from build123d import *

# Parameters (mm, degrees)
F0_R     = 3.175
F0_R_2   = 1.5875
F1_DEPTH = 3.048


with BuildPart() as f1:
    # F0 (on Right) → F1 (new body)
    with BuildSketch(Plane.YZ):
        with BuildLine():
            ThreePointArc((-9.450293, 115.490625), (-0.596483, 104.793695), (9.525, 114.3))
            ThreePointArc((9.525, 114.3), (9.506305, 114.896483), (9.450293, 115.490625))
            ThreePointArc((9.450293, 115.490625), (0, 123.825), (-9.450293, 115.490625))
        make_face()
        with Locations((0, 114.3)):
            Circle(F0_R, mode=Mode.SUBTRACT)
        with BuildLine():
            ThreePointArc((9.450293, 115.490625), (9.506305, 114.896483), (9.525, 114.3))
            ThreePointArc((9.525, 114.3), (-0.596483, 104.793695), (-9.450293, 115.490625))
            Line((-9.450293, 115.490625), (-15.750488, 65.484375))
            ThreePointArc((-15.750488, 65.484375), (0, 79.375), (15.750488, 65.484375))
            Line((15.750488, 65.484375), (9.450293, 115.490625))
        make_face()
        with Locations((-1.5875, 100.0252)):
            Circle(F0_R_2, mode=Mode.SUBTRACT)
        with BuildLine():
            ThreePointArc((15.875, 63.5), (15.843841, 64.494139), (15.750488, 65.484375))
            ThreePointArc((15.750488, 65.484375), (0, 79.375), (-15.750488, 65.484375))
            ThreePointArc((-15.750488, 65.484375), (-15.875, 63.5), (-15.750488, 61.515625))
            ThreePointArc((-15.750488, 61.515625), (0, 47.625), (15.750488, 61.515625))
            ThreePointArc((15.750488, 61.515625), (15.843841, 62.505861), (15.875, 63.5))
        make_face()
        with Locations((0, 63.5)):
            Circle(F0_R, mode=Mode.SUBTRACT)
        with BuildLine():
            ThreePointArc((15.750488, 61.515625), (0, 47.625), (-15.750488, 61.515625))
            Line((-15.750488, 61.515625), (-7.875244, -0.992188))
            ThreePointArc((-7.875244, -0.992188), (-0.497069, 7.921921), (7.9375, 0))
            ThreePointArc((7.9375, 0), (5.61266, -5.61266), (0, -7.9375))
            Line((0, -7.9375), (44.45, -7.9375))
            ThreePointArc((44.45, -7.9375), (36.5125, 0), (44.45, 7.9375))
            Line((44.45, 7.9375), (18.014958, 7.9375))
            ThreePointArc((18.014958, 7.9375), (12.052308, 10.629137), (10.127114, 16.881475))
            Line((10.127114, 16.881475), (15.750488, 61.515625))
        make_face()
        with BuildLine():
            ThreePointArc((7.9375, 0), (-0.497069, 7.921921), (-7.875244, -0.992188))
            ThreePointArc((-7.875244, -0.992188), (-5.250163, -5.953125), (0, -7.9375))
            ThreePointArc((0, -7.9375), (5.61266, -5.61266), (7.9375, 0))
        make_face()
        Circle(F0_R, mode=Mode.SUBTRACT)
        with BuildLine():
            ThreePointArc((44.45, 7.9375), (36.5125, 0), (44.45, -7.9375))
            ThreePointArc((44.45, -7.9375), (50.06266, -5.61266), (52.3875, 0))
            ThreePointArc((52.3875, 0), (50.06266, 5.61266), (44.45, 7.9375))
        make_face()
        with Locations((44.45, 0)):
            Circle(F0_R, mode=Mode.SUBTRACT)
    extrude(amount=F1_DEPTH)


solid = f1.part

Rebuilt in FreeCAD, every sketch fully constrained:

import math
import FreeCAD as App
import Part
import Sketcher
Q = App.Units.Quantity

doc = App.newDocument("Part")
params = doc.addObject("Spreadsheet::Sheet", "Params")
for row, (alias, value) in enumerate([
    ("sketch1_diameter", "0.25 in"),
    ("sketch1_diameter2", "0.25 in"),
    ("sketch1_diameter3", "0.25 in"),
    ("sketch1_diameter4", "0.25 in"),
    ("sketch1_diameter5", "0.125 in"),
    ("pad1_length", "0.12 in"),
], start=1):
    params.set(f"A{row}", alias)
    params.set(f"B{row}", "=" + value)
    params.setAlias(f"B{row}", alias)

body = doc.addObject("PartDesign::Body", "Body")

# Sketch on YZ plane
sketch1 = body.newObject("Sketcher::SketchObject", "Sketch")
sketch1.AttachmentSupport = (doc.getObject("YZ_Plane"), [""])
sketch1.MapMode = "FlatFace"
sketch1.addGeometry(Part.ArcOfCircle(Part.Circle(App.Vector(0, 114.3, 0), App.Vector(0, 0, 1), 9.525), math.radians(7.180756), math.radians(172.819244)), False)
sketch1.addGeometry(Part.LineSegment(App.Vector(-9.450293, 115.490625, 0), App.Vector(-15.750488, 65.484375, 0)), False)
sketch1.addGeometry(Part.ArcOfCircle(Part.Circle(App.Vector(-0.000035, 63.5, 0), App.Vector(0, 0, 1), 15.874965), math.radians(172.819228), math.radians(187.180772)), False)
sketch1.addGeometry(Part.LineSegment(App.Vector(-15.750488, 61.515625, 0), App.Vector(-7.875244, -0.992188, 0)), False)
sketch1.addGeometry(Part.ArcOfCircle(Part.Circle(App.Vector(0, -0.000001, 0), App.Vector(0, 0, 1), 7.937499), math.radians(-172.819245), math.radians(-89.999997)), False)
sketch1.addGeometry(Part.LineSegment(App.Vector(0, -7.9375, 0), App.Vector(44.45, -7.9375, 0)), False)
sketch1.addGeometry(Part.ArcOfCircle(Part.Circle(App.Vector(44.45, 0, 0), App.Vector(0, 0, 1), 7.9375), math.radians(-89.999998), math.radians(-0.000002)), False)
sketch1.addGeometry(Part.ArcOfCircle(Part.Circle(App.Vector(44.45, 0, 0), App.Vector(0, 0, 1), 7.9375), math.radians(0.000002), math.radians(89.999998)), False)
sketch1.addGeometry(Part.LineSegment(App.Vector(44.45, 7.9375, 0), App.Vector(18.014958, 7.9375, 0)), False)
sketch1.addGeometry(Part.ArcOfCircle(Part.Circle(App.Vector(18.014958, 15.887699, 0), App.Vector(0, 0, 1), 7.950199), math.radians(172.819238), math.radians(270.000002)), False)
sketch1.addGeometry(Part.LineSegment(App.Vector(10.127114, 16.881475, 0), App.Vector(15.750488, 61.515625, 0)), False)
sketch1.addGeometry(Part.ArcOfCircle(Part.Circle(App.Vector(-0.000171, 63.500013, 0), App.Vector(0, 0, 1), 15.875171), math.radians(-7.180725), math.radians(-0.000047)), False)
sketch1.addGeometry(Part.ArcOfCircle(Part.Circle(App.Vector(-0.000171, 63.499987, 0), App.Vector(0, 0, 1), 15.875171), math.radians(0.000047), math.radians(7.180725)), False)
sketch1.addGeometry(Part.LineSegment(App.Vector(15.750488, 65.484375, 0), App.Vector(9.450293, 115.490625, 0)), False)
sketch1.addGeometry(Part.Circle(App.Vector(0, 0, 0), App.Vector(0, 0, 1), 3.175), False)
sketch1.addGeometry(Part.Circle(App.Vector(44.45, 0, 0), App.Vector(0, 0, 1), 3.175), False)
sketch1.addGeometry(Part.Circle(App.Vector(0, 63.5, 0), App.Vector(0, 0, 1), 3.175), False)
sketch1.addGeometry(Part.Circle(App.Vector(-1.5875, 100.0252, 0), App.Vector(0, 0, 1), 1.5875), False)
sketch1.addGeometry(Part.Circle(App.Vector(0, 114.3, 0), App.Vector(0, 0, 1), 3.175), False)
sketch1.addConstraint(Sketcher.Constraint("Coincident", 0, 2, 1, 1))
sketch1.addConstraint(Sketcher.Constraint("Coincident", 1, 2, 2, 1))
sketch1.addConstraint(Sketcher.Constraint("Coincident", 2, 2, 3, 1))
sketch1.addConstraint(Sketcher.Constraint("Coincident", 3, 2, 4, 1))
sketch1.addConstraint(Sketcher.Constraint("Coincident", 4, 2, 5, 1))
sketch1.addConstraint(Sketcher.Constraint("Coincident", 5, 2, 6, 1))
sketch1.addConstraint(Sketcher.Constraint("Coincident", 6, 2, 7, 1))
sketch1.addConstraint(Sketcher.Constraint("Coincident", 7, 2, 8, 1))
sketch1.addConstraint(Sketcher.Constraint("Coincident", 8, 2, 9, 2))
sketch1.addConstraint(Sketcher.Constraint("Coincident", 9, 1, 10, 1))
sketch1.addConstraint(Sketcher.Constraint("Coincident", 10, 2, 11, 1))
sketch1.addConstraint(Sketcher.Constraint("Coincident", 11, 2, 12, 1))
sketch1.addConstraint(Sketcher.Constraint("Coincident", 12, 2, 13, 1))
sketch1.addConstraint(Sketcher.Constraint("Coincident", 13, 2, 0, 1))
sketch1.addConstraint(Sketcher.Constraint("Horizontal", 5))
sketch1.addConstraint(Sketcher.Constraint("Horizontal", 8))
sketch1.addConstraint(Sketcher.Constraint("Coincident", 4, 3, -1, 1))
sketch1.addConstraint(Sketcher.Constraint("Coincident", 14, 3, -1, 1))
sketch1.addConstraint(Sketcher.Constraint("Coincident", 7, 3, 6, 3))
sketch1.addConstraint(Sketcher.Constraint("Coincident", 15, 3, 6, 3))
sketch1.addConstraint(Sketcher.Constraint("Coincident", 18, 3, 0, 3))
sketch1.addConstraint(Sketcher.Constraint("PointOnObject", 0, 3, -2))
sketch1.addConstraint(Sketcher.Constraint("PointOnObject", 6, 3, -1))
sketch1.addConstraint(Sketcher.Constraint("PointOnObject", 16, 3, -2))
sketch1.addConstraint(Sketcher.Constraint("PointOnObject", 4, 2, -2))
sketch1.addConstraint(Sketcher.Constraint("PointOnObject", 6, 2, -1))
sketch1.addConstraint(Sketcher.Constraint("Diameter", 14, Q("0.25 in")))
sketch1.addConstraint(Sketcher.Constraint("Diameter", 15, Q("0.25 in")))
sketch1.addConstraint(Sketcher.Constraint("Diameter", 16, Q("0.25 in")))
sketch1.addConstraint(Sketcher.Constraint("Diameter", 18, Q("0.25 in")))
sketch1.addConstraint(Sketcher.Constraint("Diameter", 17, Q("0.125 in")))
sketch1.addConstraint(Sketcher.Constraint("Radius", 0, Q("0.375 in")))
sketch1.addConstraint(Sketcher.Constraint("Radius", 4, Q("0.3125 in")))
sketch1.addConstraint(Sketcher.Constraint("Radius", 9, Q("0.313 in")))
sketch1.addConstraint(Sketcher.Constraint("DistanceY", 2, 3, 0, 3, Q("2 in")))
sketch1.addConstraint(Sketcher.Constraint("DistanceY", 16, 3, 0, 3, Q("2 in")))
sketch1.addConstraint(Sketcher.Constraint("DistanceX", 5, 1, 5, 2, Q("1.75 in")))
sketch1.addConstraint(Sketcher.Constraint("DistanceY", -1, 1, 0, 3, Q("4.5 in")))
sketch1.addConstraint(Sketcher.Constraint("DistanceY", -1, 1, 11, 2, Q("2.5 in")))
sketch1.addConstraint(Sketcher.Constraint("DistanceX", -1, 1, 6, 3, Q("1.75 in")))
sketch1.addConstraint(Sketcher.Constraint("DistanceX", -1, 1, 7, 2, Q("1.75 in")))
sketch1.addConstraint(Sketcher.Constraint("DistanceX", 17, 3, -1, 1, Q("0.0625 in")))
sketch1.addConstraint(Sketcher.Constraint("DistanceY", -1, 1, 17, 3, Q("3.938 in")))
sketch1.addConstraint(Sketcher.Constraint("DistanceY", -1, 1, 0, 2, Q("4.546875 in")))
sketch1.addConstraint(Sketcher.Constraint("DistanceY", -1, 1, 1, 2, Q("2.578125 in")))
sketch1.addConstraint(Sketcher.Constraint("DistanceY", -1, 1, 2, 2, Q("2.421875 in")))
sketch1.addConstraint(Sketcher.Constraint("DistanceY", -1, 1, 10, 2, Q("2.421875 in")))
sketch1.addConstraint(Sketcher.Constraint("DistanceX", -1, 1, 11, 2, Q("0.625 in")))
sketch1.addConstraint(Sketcher.Constraint("DistanceY", -1, 1, 12, 2, Q("2.578125 in")))
sketch1.addConstraint(Sketcher.Constraint("DistanceY", -1, 1, 13, 2, Q("4.546875 in")))
sketch1.addConstraint(Sketcher.Constraint("Radius", 11, 15.875171))
sketch1.addConstraint(Sketcher.Constraint("Radius", 12, 15.875171))
sketch1.addConstraint(Sketcher.Constraint("Radius", 2, 15.874965))
sketch1.addConstraint(Sketcher.Constraint("DistanceX", 3, 2, 9, 3, 25.890202))
sketch1.addConstraint(Sketcher.Constraint("DistanceX", 8, 2, 8, 1, 26.435042))
sketch1.addConstraint(Sketcher.Constraint("DistanceX", 1, 2, -1, 1, 15.750488))
sketch1.addConstraint(Sketcher.Constraint("DistanceX", -1, 1, 10, 2, 15.750488))
sketch1.addConstraint(Sketcher.Constraint("DistanceX", -1, 1, 12, 2, 15.750488))
sketch1.addConstraint(Sketcher.Constraint("DistanceX", 4, 3, 9, 3, 18.014958))
sketch1.addConstraint(Sketcher.Constraint("Distance", 10, 44.986995))
sketch1.setExpression("Constraints[26]", "Params.sketch1_diameter")
sketch1.setExpression("Constraints[27]", "Params.sketch1_diameter2")
sketch1.setExpression("Constraints[28]", "Params.sketch1_diameter3")
sketch1.setExpression("Constraints[29]", "Params.sketch1_diameter4")
sketch1.setExpression("Constraints[30]", "Params.sketch1_diameter5")
pad1 = body.newObject("PartDesign::Pad", "Pad")
pad1.Profile = sketch1
pad1.setExpression("Length", "Params.pad1_length")

doc.recompute()
